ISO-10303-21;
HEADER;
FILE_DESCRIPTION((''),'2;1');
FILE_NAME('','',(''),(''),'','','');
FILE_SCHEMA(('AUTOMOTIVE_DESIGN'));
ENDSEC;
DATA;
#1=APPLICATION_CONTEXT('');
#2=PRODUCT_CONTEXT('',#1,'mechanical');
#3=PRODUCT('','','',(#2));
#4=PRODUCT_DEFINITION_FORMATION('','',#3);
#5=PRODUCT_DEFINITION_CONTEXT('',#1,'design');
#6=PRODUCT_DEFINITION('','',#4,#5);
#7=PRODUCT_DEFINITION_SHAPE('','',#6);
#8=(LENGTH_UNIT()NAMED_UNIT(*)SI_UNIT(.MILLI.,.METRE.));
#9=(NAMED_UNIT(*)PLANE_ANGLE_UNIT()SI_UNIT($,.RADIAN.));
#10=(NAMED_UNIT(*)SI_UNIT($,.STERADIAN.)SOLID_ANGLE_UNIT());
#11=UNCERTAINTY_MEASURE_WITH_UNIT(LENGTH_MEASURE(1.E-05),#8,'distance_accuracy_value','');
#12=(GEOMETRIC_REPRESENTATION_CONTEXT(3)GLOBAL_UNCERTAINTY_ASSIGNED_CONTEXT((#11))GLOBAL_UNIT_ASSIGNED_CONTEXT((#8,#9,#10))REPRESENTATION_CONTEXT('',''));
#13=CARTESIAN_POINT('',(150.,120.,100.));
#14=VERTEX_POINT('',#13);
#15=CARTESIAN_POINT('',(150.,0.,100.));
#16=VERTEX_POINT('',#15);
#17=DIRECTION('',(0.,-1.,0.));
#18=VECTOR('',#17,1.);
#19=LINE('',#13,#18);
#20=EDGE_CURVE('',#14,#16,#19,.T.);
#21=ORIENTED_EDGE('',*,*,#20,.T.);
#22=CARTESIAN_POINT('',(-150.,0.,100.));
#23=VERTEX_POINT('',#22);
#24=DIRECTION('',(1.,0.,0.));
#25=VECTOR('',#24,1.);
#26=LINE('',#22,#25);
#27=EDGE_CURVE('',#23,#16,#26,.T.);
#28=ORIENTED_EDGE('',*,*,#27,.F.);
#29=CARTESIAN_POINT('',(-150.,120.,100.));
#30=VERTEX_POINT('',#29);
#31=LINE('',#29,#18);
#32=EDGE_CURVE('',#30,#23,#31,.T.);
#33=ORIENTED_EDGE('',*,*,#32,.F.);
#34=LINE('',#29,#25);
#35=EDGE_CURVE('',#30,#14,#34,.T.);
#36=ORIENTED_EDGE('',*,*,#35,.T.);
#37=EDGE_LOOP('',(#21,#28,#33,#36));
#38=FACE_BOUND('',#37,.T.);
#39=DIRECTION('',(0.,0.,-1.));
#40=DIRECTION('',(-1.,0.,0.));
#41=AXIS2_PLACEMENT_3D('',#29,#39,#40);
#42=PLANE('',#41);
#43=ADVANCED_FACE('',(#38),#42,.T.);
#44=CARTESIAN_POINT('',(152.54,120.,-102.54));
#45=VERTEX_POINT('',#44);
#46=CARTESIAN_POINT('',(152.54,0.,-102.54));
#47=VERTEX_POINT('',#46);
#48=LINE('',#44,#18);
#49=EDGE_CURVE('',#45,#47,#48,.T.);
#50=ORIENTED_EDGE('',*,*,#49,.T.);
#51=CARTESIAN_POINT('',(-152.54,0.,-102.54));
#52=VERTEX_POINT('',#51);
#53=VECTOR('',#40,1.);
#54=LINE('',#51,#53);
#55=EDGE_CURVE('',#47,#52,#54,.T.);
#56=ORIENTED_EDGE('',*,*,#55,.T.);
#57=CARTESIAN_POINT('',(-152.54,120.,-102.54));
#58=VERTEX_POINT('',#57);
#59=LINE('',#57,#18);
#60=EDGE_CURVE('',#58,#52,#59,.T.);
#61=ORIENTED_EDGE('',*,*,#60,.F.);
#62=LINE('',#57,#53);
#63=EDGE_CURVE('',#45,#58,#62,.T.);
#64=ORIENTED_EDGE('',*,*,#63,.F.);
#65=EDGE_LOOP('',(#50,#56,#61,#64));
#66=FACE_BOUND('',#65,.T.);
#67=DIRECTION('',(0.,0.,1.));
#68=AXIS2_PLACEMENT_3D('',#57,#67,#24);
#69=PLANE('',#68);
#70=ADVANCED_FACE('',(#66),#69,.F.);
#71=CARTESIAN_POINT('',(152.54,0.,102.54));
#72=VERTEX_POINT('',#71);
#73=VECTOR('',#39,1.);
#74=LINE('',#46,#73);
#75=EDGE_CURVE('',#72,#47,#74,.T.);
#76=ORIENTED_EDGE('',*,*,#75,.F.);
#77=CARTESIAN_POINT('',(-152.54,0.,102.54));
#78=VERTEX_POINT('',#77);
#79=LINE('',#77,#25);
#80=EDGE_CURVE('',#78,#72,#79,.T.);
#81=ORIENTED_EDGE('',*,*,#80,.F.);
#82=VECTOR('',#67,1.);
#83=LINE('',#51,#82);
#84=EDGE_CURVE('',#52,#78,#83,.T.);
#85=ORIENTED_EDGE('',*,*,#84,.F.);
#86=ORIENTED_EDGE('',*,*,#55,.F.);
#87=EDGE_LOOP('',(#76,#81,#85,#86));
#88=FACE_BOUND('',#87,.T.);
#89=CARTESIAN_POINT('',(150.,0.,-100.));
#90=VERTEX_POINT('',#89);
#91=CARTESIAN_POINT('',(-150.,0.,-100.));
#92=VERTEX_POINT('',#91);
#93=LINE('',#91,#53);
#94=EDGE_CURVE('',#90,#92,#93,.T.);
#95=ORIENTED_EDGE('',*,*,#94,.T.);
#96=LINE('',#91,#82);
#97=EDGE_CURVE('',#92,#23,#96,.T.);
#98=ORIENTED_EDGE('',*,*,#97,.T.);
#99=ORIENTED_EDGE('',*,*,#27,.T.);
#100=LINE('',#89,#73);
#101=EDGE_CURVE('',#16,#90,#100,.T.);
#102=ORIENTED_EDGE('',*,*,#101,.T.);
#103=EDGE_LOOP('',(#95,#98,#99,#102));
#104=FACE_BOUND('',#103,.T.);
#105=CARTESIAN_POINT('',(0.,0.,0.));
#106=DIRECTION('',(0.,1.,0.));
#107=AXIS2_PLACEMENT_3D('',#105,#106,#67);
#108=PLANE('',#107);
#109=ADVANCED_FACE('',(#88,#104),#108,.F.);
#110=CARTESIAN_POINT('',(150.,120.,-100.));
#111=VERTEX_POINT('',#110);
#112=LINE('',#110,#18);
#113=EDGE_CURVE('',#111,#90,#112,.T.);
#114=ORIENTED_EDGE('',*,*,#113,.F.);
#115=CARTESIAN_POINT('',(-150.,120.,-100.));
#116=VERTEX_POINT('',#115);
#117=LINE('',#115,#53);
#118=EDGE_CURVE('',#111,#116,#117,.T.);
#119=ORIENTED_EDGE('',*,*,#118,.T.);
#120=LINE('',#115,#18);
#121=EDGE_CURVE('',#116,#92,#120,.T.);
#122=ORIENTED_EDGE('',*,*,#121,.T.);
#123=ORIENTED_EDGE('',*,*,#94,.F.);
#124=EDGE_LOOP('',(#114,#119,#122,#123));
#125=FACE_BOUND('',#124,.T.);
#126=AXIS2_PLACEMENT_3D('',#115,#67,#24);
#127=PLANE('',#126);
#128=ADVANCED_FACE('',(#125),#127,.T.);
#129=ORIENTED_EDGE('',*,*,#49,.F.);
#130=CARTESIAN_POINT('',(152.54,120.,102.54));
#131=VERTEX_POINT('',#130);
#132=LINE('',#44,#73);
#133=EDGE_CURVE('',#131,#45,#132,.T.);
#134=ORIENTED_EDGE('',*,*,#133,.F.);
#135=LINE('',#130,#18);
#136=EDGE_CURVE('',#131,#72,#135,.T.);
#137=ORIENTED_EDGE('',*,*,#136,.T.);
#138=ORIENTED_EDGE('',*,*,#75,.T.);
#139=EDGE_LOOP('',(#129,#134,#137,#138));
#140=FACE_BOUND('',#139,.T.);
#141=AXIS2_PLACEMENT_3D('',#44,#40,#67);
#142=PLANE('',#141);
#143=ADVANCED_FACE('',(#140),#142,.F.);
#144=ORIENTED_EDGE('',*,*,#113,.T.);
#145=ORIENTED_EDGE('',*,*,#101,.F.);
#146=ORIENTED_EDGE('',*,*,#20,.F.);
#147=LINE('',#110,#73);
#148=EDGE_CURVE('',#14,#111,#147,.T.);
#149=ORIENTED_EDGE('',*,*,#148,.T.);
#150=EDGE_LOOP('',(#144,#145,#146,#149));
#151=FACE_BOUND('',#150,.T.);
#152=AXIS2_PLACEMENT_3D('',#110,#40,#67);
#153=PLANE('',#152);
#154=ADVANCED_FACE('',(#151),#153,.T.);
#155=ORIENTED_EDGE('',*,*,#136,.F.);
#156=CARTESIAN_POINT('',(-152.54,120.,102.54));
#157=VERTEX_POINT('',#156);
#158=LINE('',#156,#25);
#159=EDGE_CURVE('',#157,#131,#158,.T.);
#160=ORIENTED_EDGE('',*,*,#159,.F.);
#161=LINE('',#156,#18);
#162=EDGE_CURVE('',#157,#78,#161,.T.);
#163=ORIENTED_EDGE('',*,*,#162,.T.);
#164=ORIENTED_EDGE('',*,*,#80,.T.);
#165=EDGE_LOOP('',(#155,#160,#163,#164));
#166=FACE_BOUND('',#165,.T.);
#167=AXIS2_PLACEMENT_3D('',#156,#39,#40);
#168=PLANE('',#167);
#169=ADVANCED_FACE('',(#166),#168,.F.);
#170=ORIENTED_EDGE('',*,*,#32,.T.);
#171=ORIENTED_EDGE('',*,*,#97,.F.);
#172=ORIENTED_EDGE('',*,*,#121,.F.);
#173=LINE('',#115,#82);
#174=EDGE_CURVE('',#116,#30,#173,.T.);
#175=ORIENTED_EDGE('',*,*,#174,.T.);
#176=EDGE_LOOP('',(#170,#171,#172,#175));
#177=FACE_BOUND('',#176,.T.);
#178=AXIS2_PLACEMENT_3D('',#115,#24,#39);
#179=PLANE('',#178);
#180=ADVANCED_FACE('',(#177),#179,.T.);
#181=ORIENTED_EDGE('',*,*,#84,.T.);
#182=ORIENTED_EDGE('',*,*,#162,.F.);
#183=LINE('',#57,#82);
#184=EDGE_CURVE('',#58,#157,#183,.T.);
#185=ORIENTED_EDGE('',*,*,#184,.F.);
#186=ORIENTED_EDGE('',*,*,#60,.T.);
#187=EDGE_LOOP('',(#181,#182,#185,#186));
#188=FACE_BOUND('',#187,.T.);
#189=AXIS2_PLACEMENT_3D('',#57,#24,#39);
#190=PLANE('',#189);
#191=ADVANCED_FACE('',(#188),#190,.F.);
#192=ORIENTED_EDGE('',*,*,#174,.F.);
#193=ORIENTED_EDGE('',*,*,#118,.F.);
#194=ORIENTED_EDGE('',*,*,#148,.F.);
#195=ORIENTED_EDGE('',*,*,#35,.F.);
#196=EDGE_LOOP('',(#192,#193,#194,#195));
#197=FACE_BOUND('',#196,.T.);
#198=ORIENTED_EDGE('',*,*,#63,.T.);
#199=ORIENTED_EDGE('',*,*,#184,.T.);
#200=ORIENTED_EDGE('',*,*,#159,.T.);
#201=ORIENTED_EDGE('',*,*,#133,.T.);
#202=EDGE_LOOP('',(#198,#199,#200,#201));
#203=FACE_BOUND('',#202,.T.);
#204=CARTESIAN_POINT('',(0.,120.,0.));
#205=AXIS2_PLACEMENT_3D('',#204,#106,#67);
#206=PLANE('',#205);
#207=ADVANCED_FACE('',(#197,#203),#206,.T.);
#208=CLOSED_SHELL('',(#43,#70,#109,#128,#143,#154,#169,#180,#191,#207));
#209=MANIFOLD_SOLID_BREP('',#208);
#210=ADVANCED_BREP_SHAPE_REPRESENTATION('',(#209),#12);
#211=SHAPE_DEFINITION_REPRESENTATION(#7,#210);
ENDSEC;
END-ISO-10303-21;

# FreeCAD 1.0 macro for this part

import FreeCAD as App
import Part
import Sketcher
Q = App.Units.Quantity


def add_polygon(sketch, points):
    """Adds a closed chain of lines whose ends are joined by coincident constraints."""
    first, n = sketch.GeometryCount, len(points)
    for a, b in zip(points, points[1:] + points[:1]):
        sketch.addGeometry(Part.LineSegment(App.Vector(*a, 0), App.Vector(*b, 0)), False)
    for i in range(n):
        sketch.addConstraint(Sketcher.Constraint("Coincident", first + i, 2, first + (i + 1) % n, 1))

doc = App.newDocument("Part")
params = doc.addObject("Spreadsheet::Sheet", "Params")
for row, (alias, value) in enumerate([
    ("sketch1_width", "300 mm"),
    ("sketch1_height", "200 mm"),
    ("sketch1_width2", "305.08 mm"),
    ("sketch1_height2", "205.08 mm"),
    ("pad1_length", "120 mm"),
], start=1):
    params.set(f"A{row}", alias)
    params.set(f"B{row}", "=" + value)
    params.setAlias(f"B{row}", alias)

body = doc.addObject("PartDesign::Body", "Body")

# Sketch on XZ plane
sketch1 = doc.addObject("Sketcher::SketchObject", "Sketch")
body.addObject(sketch1)
sketch1.AttachmentSupport = (doc.XZ_Plane, [""])
sketch1.MapMode = "FlatFace"
add_polygon(sketch1, [(-152.54, -102.54), (-152.54, 102.54), (152.54, 102.54), (152.54, -102.54)])  # lines 0-3
add_polygon(sketch1, [(150, 100), (-150, 100), (-150, -100), (150, -100)])  # lines 4-7
sketch1.addConstraint(Sketcher.Constraint("Vertical", 0))
sketch1.addConstraint(Sketcher.Constraint("Horizontal", 1))
sketch1.addConstraint(Sketcher.Constraint("Vertical", 2))
sketch1.addConstraint(Sketcher.Constraint("Horizontal", 3))
sketch1.addConstraint(Sketcher.Constraint("Horizontal", 4))
sketch1.addConstraint(Sketcher.Constraint("Vertical", 5))
sketch1.addConstraint(Sketcher.Constraint("Horizontal", 6))
sketch1.addConstraint(Sketcher.Constraint("Vertical", 7))
sketch1.addConstraint(Sketcher.Constraint("Symmetric", 0, 2, 2, 2, -1, 1))
sketch1.addConstraint(Sketcher.Constraint("Symmetric", 4, 2, 6, 2, -1, 1))
sketch1.addConstraint(Sketcher.Constraint("DistanceX", 4, 2, 4, 1, Q("300 mm")))
sketch1.addConstraint(Sketcher.Constraint("DistanceY", 5, 2, 5, 1, Q("200 mm")))
sketch1.addConstraint(Sketcher.Constraint("DistanceX", 1, 1, 1, 2, Q("305.08 mm")))
sketch1.addConstraint(Sketcher.Constraint("DistanceY", 0, 1, 0, 2, Q("205.08 mm")))
sketch1.setExpression("Constraints[18]", "Params.sketch1_width")
sketch1.setExpression("Constraints[19]", "Params.sketch1_height")
sketch1.setExpression("Constraints[20]", "Params.sketch1_width2")
sketch1.setExpression("Constraints[21]", "Params.sketch1_height2")
pad1 = doc.addObject("PartDesign::Pad", "Pad")
body.addObject(pad1)
pad1.Profile = sketch1
pad1.setExpression("Length", "Params.pad1_length")
pad1.Reversed = True

doc.recompute()
